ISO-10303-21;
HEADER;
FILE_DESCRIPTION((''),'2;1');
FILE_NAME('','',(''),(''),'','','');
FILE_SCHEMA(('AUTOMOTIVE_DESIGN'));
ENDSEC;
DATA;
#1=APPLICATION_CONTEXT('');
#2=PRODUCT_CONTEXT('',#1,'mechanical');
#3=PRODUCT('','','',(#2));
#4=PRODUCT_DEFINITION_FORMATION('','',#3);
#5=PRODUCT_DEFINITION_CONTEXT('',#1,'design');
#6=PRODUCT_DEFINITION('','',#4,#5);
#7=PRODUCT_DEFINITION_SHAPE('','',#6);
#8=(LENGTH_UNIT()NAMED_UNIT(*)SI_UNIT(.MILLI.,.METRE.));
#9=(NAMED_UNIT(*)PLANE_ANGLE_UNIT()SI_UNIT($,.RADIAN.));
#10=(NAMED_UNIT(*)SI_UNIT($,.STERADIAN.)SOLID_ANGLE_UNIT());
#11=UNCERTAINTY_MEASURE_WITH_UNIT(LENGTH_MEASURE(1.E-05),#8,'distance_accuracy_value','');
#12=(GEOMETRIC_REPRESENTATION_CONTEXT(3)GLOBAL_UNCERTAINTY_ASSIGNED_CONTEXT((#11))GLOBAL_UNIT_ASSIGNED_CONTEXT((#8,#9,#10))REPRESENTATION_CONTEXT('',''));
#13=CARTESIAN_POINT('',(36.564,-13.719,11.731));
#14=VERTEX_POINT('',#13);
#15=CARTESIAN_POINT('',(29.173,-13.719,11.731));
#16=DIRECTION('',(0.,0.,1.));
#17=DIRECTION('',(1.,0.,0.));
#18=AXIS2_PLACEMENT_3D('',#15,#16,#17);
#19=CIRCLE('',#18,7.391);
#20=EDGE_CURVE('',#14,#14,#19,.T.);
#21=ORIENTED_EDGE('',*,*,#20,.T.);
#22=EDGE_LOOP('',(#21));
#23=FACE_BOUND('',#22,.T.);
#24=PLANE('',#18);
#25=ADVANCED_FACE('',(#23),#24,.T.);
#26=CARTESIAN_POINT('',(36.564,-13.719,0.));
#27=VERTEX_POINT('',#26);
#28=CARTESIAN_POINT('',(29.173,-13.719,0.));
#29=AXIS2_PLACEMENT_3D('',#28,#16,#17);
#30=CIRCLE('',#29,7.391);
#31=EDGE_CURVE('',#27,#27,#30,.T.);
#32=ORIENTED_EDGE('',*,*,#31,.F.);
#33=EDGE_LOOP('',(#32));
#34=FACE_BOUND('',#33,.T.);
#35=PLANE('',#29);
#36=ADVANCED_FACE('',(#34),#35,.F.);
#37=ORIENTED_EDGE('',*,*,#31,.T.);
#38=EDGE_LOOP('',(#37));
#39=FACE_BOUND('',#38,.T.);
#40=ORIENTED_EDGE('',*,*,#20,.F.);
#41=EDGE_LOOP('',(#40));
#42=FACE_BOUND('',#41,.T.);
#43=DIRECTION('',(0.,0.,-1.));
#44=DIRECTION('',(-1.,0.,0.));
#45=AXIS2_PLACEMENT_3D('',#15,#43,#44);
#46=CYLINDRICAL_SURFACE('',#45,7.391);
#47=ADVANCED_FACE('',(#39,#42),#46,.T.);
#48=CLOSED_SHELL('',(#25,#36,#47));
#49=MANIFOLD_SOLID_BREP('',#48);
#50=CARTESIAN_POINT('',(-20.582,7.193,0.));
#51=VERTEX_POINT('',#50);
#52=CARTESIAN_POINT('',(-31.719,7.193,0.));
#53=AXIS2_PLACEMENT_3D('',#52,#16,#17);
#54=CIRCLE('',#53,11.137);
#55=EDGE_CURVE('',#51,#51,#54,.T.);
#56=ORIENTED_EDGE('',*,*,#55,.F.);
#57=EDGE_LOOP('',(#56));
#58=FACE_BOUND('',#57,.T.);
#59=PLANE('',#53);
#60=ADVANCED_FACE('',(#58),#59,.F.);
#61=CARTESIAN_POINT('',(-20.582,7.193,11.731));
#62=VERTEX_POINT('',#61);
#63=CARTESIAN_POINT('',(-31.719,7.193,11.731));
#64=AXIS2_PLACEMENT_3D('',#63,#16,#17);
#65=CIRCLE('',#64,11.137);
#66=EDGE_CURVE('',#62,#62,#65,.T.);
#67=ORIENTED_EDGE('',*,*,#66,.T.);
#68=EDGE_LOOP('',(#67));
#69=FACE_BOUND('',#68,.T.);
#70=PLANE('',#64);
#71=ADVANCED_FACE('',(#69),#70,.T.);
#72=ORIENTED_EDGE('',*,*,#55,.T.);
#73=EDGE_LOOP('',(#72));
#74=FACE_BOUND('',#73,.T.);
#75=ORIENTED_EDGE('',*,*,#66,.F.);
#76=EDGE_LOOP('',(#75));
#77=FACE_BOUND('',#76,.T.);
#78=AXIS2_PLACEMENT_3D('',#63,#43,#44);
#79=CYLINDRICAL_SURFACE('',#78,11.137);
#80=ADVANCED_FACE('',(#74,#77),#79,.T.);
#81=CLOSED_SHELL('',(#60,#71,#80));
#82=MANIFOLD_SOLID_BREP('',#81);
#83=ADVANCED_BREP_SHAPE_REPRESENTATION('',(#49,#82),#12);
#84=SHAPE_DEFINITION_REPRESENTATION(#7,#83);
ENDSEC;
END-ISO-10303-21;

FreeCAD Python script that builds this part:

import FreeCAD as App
import Part
import Sketcher

V = App.Vector
Q = App.Units.Quantity

doc = App.newDocument("Part")
body = doc.addObject("PartDesign::Body", "Body")

sketch1 = body.newObject("Sketcher::SketchObject", "Sketch")
sketch1.AttachmentSupport = (doc.getObject("XY_Plane"), [""])
sketch1.MapMode = "FlatFace"
sketch1.addGeometry(Part.Circle(V(-32, 7, 0), V(0, 0, 1), 11), False)
sketch1.addConstraint([
    Sketcher.Constraint("Diameter", 0, Q("22.274 mm")),
    Sketcher.Constraint("DistanceX", 0, 3, -1, 1, Q("31.719 mm")),
    Sketcher.Constraint("DistanceY", -1, 1, 0, 3, Q("7.193 mm")),
])
pad1 = body.newObject("PartDesign::Pad", "Pad")
pad1.Profile = sketch1
pad1.Length = 11.731
body2 = doc.addObject("PartDesign::Body", "Body001")

sketch2 = body2.newObject("Sketcher::SketchObject", "Sketch001")
sketch2.AttachmentSupport = (doc.getObject("XY_Plane001"), [""])
sketch2.MapMode = "FlatFace"
sketch2.addGeometry(Part.Circle(V(29, -14, 0), V(0, 0, 1), 7), False)
sketch2.addConstraint([
    Sketcher.Constraint("Diameter", 0, Q("14.782 mm")),
    Sketcher.Constraint("DistanceX", -1, 1, 0, 3, Q("29.173 mm")),
    Sketcher.Constraint("DistanceY", 0, 3, -1, 1, Q("13.719 mm")),
])
pad2 = body2.newObject("PartDesign::Pad", "Pad001")
pad2.Profile = sketch2
pad2.Length = 11.731

doc.recompute()
